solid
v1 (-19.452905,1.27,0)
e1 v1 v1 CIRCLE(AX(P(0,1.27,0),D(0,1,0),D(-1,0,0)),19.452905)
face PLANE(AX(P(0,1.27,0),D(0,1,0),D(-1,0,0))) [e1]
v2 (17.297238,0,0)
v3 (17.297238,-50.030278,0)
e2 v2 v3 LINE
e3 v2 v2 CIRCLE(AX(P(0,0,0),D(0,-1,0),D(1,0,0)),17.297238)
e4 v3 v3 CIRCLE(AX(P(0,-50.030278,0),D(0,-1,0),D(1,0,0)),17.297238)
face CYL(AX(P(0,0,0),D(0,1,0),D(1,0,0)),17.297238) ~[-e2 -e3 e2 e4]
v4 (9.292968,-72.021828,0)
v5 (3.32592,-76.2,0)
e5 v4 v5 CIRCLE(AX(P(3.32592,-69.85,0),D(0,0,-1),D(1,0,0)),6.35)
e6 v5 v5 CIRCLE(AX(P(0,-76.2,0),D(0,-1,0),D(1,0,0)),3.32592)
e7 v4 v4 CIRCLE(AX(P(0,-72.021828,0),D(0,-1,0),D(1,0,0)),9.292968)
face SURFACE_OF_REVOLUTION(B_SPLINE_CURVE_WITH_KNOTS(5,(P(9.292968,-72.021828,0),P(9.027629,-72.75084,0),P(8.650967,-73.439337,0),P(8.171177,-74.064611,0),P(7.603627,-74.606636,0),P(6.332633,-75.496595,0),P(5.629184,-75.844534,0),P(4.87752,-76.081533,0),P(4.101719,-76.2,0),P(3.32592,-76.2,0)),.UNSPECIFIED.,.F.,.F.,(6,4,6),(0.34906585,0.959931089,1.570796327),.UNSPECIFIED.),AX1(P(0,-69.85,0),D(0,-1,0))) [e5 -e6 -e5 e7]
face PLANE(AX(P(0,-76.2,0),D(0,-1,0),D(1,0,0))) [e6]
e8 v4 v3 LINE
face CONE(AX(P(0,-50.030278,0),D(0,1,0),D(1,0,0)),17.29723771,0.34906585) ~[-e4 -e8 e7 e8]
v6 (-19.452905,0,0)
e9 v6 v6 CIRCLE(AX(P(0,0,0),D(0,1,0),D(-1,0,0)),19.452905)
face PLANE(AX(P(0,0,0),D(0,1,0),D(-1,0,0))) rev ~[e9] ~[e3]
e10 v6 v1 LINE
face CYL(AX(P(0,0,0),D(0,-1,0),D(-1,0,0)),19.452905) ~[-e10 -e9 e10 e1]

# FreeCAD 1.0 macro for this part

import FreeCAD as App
import Part
import Sketcher
from FreeCAD import Vector
Q = App.Units.Quantity


def edges_at(feature, points):
    """Names of the edges that pass closest to the given points."""
    edges = feature.Shape.Edges
    near = lambda p: min(range(len(edges)), key=lambda i: edges[i].distToShape(Part.Vertex(*p))[0])
    return sorted({f"Edge{near(p) + 1}" for p in points})

doc = App.newDocument("Part")
body = doc.addObject("PartDesign::Body", "Body")

# Sketch on XZ plane
sketch1 = body.newObject("Sketcher::SketchObject", "Sketch")
sketch1.AttachmentSupport = (doc.getObject("XZ_Plane"), [""])
sketch1.MapMode = "FlatFace"
sketch1.addGeometry(Part.Circle(Vector(0, 0, 0), Vector(0, 0, 1), 17), False)
sketch1.addConstraint([
    Sketcher.Constraint("Coincident", 0, 3, -1, 1),
    Sketcher.Constraint("Diameter", 0, Q("34.594475 mm")),
])
pad1 = body.newObject("PartDesign::Pad", "Pad")
pad1.Profile = sketch1
pad1.Length = Q("3 in")
doc.recompute()

chamfer = body.newObject("PartDesign::Chamfer", "Chamfer")
chamfer.Base = (pad1, edges_at(pad1, [(-17.297, -76.2, 0)]))
chamfer.ChamferType = "Two distances"
chamfer.Size = Q("0.375 in")
chamfer.Size2 = 26.169722
chamfer.FlipDirection = True
doc.recompute()

fillet = body.newObject("PartDesign::Fillet", "Fillet")
fillet.Base = (chamfer, edges_at(chamfer, [(-7.772, -76.2, 0)]))
fillet.Radius = Q("0.25 in")

# Sketch on XZ plane
sketch2 = body.newObject("Sketcher::SketchObject", "Sketch001")
sketch2.AttachmentSupport = (doc.getObject("XZ_Plane"), [""])
sketch2.MapMode = "FlatFace"
sketch2.addGeometry(Part.Circle(Vector(0, 0, 0), Vector(0, 0, 1), 19), False)
sketch2.addConstraint([
    Sketcher.Constraint("Coincident", 0, 3, -1, 1),
    Sketcher.Constraint("Diameter", 0, Q("38.905809 mm")),
])
pad2 = body.newObject("PartDesign::Pad", "Pad001")
pad2.Profile = sketch2
pad2.Length = Q("0.05 in")
pad2.Reversed = True

doc.recompute()
